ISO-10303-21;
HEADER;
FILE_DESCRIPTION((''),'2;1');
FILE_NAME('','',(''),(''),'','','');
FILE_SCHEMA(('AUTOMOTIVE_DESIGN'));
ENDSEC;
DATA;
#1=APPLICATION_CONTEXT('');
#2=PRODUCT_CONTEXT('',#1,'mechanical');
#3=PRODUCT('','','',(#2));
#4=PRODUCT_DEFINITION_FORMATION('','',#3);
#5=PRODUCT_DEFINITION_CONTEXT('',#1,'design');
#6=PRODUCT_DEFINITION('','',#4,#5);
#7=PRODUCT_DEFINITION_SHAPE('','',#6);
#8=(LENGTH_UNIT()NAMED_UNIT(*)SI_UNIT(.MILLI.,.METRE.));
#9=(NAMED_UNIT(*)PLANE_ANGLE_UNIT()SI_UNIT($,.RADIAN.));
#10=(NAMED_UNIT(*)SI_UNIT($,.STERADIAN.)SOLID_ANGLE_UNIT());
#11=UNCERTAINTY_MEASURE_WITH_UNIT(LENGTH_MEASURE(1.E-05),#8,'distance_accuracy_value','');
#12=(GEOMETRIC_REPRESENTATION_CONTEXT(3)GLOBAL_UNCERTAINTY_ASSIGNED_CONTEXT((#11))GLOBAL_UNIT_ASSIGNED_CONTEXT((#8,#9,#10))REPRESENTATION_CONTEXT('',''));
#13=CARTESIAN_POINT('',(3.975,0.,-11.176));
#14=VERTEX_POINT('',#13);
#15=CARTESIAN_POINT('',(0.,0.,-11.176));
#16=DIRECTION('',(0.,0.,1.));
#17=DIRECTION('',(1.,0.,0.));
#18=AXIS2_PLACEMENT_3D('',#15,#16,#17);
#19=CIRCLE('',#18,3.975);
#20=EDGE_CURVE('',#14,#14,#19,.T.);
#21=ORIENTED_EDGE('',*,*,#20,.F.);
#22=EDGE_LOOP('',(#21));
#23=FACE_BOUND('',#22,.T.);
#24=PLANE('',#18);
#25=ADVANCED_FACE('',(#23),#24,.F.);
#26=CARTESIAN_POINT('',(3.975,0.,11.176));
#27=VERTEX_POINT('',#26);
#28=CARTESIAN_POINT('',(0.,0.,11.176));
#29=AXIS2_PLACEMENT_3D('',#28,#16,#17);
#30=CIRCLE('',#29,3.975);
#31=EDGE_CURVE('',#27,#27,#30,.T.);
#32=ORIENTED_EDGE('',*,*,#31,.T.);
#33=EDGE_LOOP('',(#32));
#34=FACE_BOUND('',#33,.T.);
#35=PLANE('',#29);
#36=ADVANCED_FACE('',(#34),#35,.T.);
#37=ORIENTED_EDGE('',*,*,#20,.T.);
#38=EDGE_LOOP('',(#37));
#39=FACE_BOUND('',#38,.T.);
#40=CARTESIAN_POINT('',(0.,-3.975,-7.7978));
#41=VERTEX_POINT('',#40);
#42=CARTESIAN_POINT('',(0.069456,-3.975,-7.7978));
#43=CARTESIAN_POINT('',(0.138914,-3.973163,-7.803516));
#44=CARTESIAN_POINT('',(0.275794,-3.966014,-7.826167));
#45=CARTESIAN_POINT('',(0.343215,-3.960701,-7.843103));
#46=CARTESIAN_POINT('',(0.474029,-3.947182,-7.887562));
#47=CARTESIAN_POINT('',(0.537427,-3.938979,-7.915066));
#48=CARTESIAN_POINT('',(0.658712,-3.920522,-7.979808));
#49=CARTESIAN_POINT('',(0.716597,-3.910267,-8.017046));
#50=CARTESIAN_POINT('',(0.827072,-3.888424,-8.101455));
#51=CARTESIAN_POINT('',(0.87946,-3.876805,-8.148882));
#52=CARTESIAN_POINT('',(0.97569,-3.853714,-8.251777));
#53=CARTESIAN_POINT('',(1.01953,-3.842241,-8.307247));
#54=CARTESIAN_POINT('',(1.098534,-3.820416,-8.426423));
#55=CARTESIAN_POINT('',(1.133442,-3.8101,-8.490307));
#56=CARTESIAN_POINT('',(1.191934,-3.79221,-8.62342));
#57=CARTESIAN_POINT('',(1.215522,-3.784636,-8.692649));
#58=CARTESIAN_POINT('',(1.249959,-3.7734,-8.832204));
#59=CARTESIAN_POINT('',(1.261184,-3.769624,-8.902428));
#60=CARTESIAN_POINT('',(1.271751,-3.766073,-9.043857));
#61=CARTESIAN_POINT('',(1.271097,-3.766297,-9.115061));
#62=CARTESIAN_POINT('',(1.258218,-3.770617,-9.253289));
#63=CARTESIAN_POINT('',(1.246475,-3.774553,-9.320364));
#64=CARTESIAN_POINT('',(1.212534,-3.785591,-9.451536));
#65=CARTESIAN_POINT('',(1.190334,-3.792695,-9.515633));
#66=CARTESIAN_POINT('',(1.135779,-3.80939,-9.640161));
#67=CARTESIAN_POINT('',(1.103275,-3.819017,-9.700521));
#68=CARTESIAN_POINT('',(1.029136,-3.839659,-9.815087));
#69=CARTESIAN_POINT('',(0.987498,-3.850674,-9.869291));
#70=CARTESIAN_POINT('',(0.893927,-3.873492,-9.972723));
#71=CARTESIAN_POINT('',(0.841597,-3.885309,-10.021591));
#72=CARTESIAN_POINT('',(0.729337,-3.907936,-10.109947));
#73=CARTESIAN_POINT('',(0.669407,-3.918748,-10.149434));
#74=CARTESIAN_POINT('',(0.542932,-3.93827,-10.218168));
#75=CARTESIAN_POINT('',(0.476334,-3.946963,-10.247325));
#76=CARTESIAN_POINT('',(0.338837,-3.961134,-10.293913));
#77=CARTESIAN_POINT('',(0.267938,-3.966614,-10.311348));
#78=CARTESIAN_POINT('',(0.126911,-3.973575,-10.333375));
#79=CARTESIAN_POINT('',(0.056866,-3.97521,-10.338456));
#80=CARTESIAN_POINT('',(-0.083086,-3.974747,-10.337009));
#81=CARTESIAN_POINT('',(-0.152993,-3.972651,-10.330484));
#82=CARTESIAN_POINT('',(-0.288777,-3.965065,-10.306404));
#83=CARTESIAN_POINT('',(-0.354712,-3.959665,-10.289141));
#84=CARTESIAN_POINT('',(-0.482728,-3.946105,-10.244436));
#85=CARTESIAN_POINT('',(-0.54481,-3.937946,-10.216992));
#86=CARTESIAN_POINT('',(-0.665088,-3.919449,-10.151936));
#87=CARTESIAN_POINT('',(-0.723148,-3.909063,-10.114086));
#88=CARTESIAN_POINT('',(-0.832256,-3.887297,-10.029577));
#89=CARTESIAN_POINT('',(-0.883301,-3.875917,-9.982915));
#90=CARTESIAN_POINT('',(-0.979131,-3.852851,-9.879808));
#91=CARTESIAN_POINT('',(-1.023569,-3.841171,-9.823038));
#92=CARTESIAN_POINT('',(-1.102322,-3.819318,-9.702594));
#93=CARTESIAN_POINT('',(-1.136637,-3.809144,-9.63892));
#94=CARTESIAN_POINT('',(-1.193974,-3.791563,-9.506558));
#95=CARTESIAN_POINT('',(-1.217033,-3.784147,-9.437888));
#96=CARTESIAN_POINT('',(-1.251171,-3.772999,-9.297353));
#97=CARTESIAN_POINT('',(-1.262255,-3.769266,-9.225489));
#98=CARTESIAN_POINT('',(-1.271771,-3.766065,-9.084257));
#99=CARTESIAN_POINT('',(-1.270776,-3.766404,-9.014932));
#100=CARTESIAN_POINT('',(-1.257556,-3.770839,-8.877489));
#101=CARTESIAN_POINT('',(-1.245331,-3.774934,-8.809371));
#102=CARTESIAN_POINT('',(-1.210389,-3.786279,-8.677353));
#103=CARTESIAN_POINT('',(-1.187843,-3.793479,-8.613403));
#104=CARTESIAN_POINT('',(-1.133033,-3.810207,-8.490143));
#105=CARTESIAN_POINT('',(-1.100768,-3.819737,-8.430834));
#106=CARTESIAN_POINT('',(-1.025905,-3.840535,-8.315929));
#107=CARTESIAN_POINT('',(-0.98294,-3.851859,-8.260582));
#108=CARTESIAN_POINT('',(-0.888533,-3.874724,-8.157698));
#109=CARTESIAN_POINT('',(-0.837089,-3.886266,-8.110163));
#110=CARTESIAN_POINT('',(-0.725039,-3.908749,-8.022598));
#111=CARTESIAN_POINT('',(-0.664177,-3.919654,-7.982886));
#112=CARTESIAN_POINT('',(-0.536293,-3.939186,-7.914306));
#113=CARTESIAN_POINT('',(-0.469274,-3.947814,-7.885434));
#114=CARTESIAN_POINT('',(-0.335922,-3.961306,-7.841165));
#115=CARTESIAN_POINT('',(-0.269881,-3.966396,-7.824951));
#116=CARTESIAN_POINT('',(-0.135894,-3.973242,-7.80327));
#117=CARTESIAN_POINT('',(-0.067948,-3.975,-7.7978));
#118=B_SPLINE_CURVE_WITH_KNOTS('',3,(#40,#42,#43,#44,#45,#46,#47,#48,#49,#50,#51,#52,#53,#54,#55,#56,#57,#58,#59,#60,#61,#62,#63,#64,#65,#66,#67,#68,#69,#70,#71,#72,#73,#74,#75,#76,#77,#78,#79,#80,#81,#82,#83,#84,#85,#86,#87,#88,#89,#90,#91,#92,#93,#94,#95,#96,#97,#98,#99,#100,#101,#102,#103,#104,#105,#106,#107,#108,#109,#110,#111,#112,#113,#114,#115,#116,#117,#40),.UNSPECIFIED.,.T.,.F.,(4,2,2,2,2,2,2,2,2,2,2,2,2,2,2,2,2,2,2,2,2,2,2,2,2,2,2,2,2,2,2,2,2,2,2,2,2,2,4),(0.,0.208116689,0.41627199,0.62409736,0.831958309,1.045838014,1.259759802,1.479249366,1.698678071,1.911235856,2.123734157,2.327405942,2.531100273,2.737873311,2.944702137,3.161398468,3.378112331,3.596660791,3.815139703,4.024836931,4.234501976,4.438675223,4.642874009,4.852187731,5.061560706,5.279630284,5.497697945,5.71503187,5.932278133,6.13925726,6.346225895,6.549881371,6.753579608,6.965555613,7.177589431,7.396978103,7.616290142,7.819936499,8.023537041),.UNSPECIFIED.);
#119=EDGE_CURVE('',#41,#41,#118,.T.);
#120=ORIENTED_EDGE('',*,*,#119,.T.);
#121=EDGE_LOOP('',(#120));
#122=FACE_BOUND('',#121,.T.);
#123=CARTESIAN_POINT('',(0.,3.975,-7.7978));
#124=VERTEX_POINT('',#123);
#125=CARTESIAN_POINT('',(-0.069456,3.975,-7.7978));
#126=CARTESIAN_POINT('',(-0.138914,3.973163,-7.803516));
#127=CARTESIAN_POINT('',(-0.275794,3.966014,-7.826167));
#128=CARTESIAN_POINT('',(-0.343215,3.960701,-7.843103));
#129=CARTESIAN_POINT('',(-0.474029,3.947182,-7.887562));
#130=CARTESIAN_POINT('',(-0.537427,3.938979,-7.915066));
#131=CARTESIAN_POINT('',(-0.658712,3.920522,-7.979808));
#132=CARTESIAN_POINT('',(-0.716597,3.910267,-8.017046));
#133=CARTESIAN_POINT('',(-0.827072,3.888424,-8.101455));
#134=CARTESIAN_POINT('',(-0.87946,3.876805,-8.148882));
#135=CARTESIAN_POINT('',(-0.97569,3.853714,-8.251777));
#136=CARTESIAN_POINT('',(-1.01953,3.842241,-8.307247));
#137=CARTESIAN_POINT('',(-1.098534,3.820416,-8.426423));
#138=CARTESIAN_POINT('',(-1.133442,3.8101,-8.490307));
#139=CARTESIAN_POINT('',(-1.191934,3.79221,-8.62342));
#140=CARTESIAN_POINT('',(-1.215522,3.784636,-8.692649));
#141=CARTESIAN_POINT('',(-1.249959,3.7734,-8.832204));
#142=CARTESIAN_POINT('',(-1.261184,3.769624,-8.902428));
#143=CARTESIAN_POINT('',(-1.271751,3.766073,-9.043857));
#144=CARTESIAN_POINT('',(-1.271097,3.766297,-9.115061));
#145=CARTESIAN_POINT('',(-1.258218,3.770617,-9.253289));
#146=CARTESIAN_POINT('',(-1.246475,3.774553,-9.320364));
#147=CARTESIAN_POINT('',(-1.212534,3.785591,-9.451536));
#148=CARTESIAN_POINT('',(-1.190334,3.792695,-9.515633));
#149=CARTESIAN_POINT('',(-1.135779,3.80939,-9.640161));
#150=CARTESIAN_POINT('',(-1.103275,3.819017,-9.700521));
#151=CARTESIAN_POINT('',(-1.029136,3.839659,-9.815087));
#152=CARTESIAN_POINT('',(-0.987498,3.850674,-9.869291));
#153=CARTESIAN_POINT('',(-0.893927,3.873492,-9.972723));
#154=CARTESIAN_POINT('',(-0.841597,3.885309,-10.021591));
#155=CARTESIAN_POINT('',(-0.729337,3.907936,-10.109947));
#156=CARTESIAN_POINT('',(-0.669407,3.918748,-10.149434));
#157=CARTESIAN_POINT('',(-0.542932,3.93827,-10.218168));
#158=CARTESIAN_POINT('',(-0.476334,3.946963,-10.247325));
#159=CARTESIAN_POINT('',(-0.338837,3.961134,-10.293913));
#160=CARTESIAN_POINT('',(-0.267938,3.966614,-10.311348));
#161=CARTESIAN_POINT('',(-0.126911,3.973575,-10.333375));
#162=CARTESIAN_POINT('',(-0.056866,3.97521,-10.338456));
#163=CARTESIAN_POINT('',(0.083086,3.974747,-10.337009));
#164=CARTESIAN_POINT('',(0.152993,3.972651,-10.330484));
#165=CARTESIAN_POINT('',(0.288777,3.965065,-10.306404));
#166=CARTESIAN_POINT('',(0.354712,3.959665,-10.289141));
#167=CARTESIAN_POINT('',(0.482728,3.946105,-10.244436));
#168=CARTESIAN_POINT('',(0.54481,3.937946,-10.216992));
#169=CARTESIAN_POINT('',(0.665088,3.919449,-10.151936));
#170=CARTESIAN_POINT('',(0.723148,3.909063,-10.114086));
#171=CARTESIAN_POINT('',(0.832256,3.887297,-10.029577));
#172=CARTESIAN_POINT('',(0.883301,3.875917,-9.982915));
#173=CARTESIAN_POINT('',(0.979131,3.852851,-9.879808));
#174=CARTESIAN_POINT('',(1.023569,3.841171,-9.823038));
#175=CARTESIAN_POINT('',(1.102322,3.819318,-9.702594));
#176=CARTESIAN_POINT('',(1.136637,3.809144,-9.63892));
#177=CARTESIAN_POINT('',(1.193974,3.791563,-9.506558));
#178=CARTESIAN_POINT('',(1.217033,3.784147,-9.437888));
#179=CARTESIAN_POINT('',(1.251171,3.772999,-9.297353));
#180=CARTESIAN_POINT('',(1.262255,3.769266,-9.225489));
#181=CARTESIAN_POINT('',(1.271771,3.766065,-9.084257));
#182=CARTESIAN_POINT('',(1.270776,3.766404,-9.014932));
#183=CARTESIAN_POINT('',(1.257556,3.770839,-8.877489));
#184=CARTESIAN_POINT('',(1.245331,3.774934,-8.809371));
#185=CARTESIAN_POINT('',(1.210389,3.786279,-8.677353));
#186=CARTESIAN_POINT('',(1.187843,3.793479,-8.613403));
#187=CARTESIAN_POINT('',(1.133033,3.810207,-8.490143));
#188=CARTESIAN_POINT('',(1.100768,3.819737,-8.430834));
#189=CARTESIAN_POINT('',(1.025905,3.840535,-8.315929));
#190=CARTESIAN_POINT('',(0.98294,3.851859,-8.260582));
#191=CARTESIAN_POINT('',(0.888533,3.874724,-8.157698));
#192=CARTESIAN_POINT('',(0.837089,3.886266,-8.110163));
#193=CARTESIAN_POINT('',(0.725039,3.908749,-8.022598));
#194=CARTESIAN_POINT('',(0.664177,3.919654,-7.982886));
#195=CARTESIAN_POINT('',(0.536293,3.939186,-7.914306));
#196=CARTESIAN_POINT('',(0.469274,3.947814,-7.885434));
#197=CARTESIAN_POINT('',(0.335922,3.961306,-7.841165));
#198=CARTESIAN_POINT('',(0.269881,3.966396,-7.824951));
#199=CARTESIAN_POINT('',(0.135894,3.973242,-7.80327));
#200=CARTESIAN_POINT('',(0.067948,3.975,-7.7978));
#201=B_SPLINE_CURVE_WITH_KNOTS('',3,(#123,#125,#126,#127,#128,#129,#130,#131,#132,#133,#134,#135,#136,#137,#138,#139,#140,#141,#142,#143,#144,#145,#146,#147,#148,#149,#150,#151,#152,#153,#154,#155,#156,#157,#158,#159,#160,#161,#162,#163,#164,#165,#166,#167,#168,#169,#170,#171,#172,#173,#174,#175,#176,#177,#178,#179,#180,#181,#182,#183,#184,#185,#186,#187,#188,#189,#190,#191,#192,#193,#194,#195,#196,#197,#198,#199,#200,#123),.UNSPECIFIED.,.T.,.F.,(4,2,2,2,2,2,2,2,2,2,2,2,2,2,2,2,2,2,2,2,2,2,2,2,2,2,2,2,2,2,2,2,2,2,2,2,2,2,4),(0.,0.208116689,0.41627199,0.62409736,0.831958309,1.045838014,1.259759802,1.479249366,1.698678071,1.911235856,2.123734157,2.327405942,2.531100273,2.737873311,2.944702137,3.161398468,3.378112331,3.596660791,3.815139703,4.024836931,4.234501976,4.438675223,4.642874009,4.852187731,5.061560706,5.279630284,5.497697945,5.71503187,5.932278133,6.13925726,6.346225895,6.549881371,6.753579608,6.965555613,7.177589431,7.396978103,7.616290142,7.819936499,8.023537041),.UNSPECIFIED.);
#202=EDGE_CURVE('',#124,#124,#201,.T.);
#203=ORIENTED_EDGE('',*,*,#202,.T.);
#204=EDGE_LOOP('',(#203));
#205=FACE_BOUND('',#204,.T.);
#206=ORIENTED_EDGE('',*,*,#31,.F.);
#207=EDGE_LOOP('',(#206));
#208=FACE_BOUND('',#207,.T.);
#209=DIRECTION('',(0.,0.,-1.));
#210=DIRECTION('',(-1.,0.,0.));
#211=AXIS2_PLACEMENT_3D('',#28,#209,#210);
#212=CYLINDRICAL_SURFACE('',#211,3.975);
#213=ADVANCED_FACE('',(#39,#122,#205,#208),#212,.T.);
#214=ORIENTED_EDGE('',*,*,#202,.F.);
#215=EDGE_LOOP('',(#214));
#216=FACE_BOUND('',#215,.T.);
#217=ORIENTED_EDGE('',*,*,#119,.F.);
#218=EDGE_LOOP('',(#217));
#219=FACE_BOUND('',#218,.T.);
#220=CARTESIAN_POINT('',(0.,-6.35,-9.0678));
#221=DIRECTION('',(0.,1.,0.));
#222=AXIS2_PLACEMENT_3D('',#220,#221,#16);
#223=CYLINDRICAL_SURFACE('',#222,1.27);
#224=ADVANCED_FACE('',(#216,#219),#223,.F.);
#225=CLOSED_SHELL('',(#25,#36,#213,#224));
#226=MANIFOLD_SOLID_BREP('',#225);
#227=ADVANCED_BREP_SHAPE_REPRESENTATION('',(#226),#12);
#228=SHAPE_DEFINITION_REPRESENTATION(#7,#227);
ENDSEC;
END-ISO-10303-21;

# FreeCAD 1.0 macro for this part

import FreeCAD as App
import Part
import Sketcher
Q = App.Units.Quantity

doc = App.newDocument("Part")
body = doc.addObject("PartDesign::Body", "Body")

# Sketch on XY plane
sketch1 = doc.addObject("Sketcher::SketchObject", "Sketch")
body.addObject(sketch1)
sketch1.AttachmentSupport = (doc.XY_Plane, [""])
sketch1.MapMode = "FlatFace"
sketch1.addGeometry(Part.Circle(App.Vector(0, 0, 0), App.Vector(0, 0, 1), 4), False)
sketch1.addConstraint([
    Sketcher.Constraint("Coincident", 0, 3, -1, 1),
    Sketcher.Constraint("Diameter", 0, 7.95),
])
pad1 = doc.addObject("PartDesign::Pad", "Pad")
body.addObject(pad1)
pad1.Profile = sketch1
pad1.Length = Q("0.88 in")
pad1.Midplane = True

# Sketch on XZ plane
sketch2 = doc.addObject("Sketcher::SketchObject", "Sketch001")
body.addObject(sketch2)
sketch2.AttachmentSupport = (doc.XZ_Plane, [""])
sketch2.MapMode = "FlatFace"
sketch2.addGeometry(Part.Circle(App.Vector(0, -9.1, 0), App.Vector(0, 0, 1), 1.3), False)
sketch2.addConstraint([
    Sketcher.Constraint("PointOnObject", 0, 3, -2),
    Sketcher.Constraint("Diameter", 0, Q("0.1 in")),
    Sketcher.Constraint("DistanceY", 0, 3, -1, 1, Q("0.357 in")),
])
pocket1 = doc.addObject("PartDesign::Pocket", "Pocket")
body.addObject(pocket1)
pocket1.Profile = sketch2
pocket1.Length = Q("0.5 in")
pocket1.Midplane = True

doc.recompute()
